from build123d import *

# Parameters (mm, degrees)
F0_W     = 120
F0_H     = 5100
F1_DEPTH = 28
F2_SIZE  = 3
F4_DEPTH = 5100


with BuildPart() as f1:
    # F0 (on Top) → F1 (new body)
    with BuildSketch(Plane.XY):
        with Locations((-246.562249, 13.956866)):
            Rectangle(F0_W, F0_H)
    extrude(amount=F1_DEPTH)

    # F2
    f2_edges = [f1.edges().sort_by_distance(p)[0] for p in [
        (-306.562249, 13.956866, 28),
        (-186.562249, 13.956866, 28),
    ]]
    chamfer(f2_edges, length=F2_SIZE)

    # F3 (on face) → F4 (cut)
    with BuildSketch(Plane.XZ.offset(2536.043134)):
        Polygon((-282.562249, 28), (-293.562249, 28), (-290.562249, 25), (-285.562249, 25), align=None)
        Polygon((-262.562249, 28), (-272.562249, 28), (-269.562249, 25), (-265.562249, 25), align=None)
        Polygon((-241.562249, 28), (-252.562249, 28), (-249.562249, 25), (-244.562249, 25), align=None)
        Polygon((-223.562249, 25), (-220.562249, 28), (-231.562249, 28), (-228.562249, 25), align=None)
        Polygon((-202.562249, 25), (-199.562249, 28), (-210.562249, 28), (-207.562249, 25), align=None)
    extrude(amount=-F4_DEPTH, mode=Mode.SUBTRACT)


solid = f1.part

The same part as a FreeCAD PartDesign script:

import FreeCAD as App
import Part
import Sketcher
Q = App.Units.Quantity


def edges_at(feature, points):
    """Names of the edges that pass closest to the given points."""
    edges = feature.Shape.Edges
    near = lambda p: min(range(len(edges)), key=lambda i: edges[i].distToShape(Part.Vertex(*p))[0])
    return sorted({f"Edge{near(p) + 1}" for p in points})

doc = App.newDocument("Part")
body = doc.addObject("PartDesign::Body", "Body")

# Sketch on XY plane
sketch1 = body.newObject("Sketcher::SketchObject", "Sketch")
sketch1.AttachmentSupport = (doc.getObject("XY_Plane"), [""])
sketch1.MapMode = "FlatFace"
sketch1.addGeometry([
    Part.LineSegment(App.Vector(-307, 2564, 0), App.Vector(-307, -2536, 0)),
    Part.LineSegment(App.Vector(-307, -2536, 0), App.Vector(-187, -2536, 0)),
    Part.LineSegment(App.Vector(-187, -2536, 0), App.Vector(-187, 2564, 0)),
    Part.LineSegment(App.Vector(-187, 2564, 0), App.Vector(-307, 2564, 0)),
], False)
sketch1.addConstraint([
    Sketcher.Constraint("Coincident", 0, 2, 1, 1),
    Sketcher.Constraint("Coincident", 1, 2, 2, 1),
    Sketcher.Constraint("Coincident", 2, 2, 3, 1),
    Sketcher.Constraint("Coincident", 3, 2, 0, 1),
    Sketcher.Constraint("Vertical", 0),
    Sketcher.Constraint("Horizontal", 1),
    Sketcher.Constraint("Vertical", 2),
    Sketcher.Constraint("Horizontal", 3),
    Sketcher.Constraint("DistanceX", 1, 1, 1, 2, Q("120 mm")),
    Sketcher.Constraint("DistanceY", 0, 2, 0, 1, Q("5100 mm")),
    Sketcher.Constraint("DistanceX", 0, 2, -1, 1, Q("306.562249 mm")),
    Sketcher.Constraint("DistanceY", 0, 2, -1, 1, Q("2536.043134 mm")),
])
pad1 = body.newObject("PartDesign::Pad", "Pad")
pad1.Profile = sketch1
pad1.Length = 28
doc.recompute()

chamfer = body.newObject("PartDesign::Chamfer", "Chamfer")
chamfer.Base = (pad1, edges_at(pad1, [(-306.562, 13.957, 28), (-186.562, 13.957, 28)]))
chamfer.Size = 3

# Sketch on XZ plane
sketch2 = body.newObject("Sketcher::SketchObject", "Sketch001")
sketch2.AttachmentSupport = (doc.getObject("XZ_Plane"), [""])
sketch2.MapMode = "FlatFace"
sketch2.AttachmentOffset = App.Placement(App.Vector(0, 0, 2536.043134), App.Rotation())
sketch2.addGeometry([
    Part.LineSegment(App.Vector(-282.6, 28, 0), App.Vector(-293.6, 28, 0)),  # 0
    Part.LineSegment(App.Vector(-293.6, 28, 0), App.Vector(-290.6, 25, 0)),  # 1
    Part.LineSegment(App.Vector(-290.6, 25, 0), App.Vector(-285.6, 25, 0)),  # 2
    Part.LineSegment(App.Vector(-285.6, 25, 0), App.Vector(-282.6, 28, 0)),  # 3
    Part.LineSegment(App.Vector(-262.6, 28, 0), App.Vector(-272.6, 28, 0)),  # 4
    Part.LineSegment(App.Vector(-272.6, 28, 0), App.Vector(-269.6, 25, 0)),  # 5
    Part.LineSegment(App.Vector(-269.6, 25, 0), App.Vector(-265.6, 25, 0)),  # 6
    Part.LineSegment(App.Vector(-265.6, 25, 0), App.Vector(-262.6, 28, 0)),  # 7
    Part.LineSegment(App.Vector(-241.6, 28, 0), App.Vector(-252.6, 28, 0)),  # 8
    Part.LineSegment(App.Vector(-252.6, 28, 0), App.Vector(-249.6, 25, 0)),  # 9
    Part.LineSegment(App.Vector(-249.6, 25, 0), App.Vector(-244.6, 25, 0)),  # 10
    Part.LineSegment(App.Vector(-244.6, 25, 0), App.Vector(-241.6, 28, 0)),  # 11
    Part.LineSegment(App.Vector(-223.6, 25, 0), App.Vector(-220.6, 28, 0)),  # 12
    Part.LineSegment(App.Vector(-220.6, 28, 0), App.Vector(-231.6, 28, 0)),  # 13
    Part.LineSegment(App.Vector(-231.6, 28, 0), App.Vector(-228.6, 25, 0)),  # 14
    Part.LineSegment(App.Vector(-228.6, 25, 0), App.Vector(-223.6, 25, 0)),  # 15
    Part.LineSegment(App.Vector(-202.6, 25, 0), App.Vector(-199.6, 28, 0)),  # 16
    Part.LineSegment(App.Vector(-199.6, 28, 0), App.Vector(-210.6, 28, 0)),  # 17
    Part.LineSegment(App.Vector(-210.6, 28, 0), App.Vector(-207.6, 25, 0)),  # 18
    Part.LineSegment(App.Vector(-207.6, 25, 0), App.Vector(-202.6, 25, 0)),  # 19
], False)
sketch2.addConstraint([
    Sketcher.Constraint("Coincident", 0, 2, 1, 1),
    Sketcher.Constraint("Coincident", 1, 2, 2, 1),
    Sketcher.Constraint("Coincident", 2, 2, 3, 1),
    Sketcher.Constraint("Coincident", 3, 2, 0, 1),
    Sketcher.Constraint("Coincident", 4, 2, 5, 1),
    Sketcher.Constraint("Coincident", 5, 2, 6, 1),
    Sketcher.Constraint("Coincident", 6, 2, 7, 1),
    Sketcher.Constraint("Coincident", 7, 2, 4, 1),
    Sketcher.Constraint("Coincident", 8, 2, 9, 1),
    Sketcher.Constraint("Coincident", 9, 2, 10, 1),
    Sketcher.Constraint("Coincident", 10, 2, 11, 1),
    Sketcher.Constraint("Coincident", 11, 2, 8, 1),
    Sketcher.Constraint("Coincident", 12, 2, 13, 1),
    Sketcher.Constraint("Coincident", 13, 2, 14, 1),
    Sketcher.Constraint("Coincident", 14, 2, 15, 1),
    Sketcher.Constraint("Coincident", 15, 2, 12, 1),
    Sketcher.Constraint("Coincident", 16, 2, 17, 1),
    Sketcher.Constraint("Coincident", 17, 2, 18, 1),
    Sketcher.Constraint("Coincident", 18, 2, 19, 1),
    Sketcher.Constraint("Coincident", 19, 2, 16, 1),
    Sketcher.Constraint("Horizontal", 0),
    Sketcher.Constraint("Horizontal", 2),
    Sketcher.Constraint("Horizontal", 4),
    Sketcher.Constraint("Horizontal", 6),
    Sketcher.Constraint("Horizontal", 8),
    Sketcher.Constraint("Horizontal", 10),
    Sketcher.Constraint("Horizontal", 13),
    Sketcher.Constraint("Horizontal", 15),
    Sketcher.Constraint("Horizontal", 17),
    Sketcher.Constraint("Horizontal", 19),
    Sketcher.Constraint("Perpendicular", 1, 3),
    Sketcher.Constraint("Perpendicular", 3, 5),
    Sketcher.Constraint("Perpendicular", 5, 7),
    Sketcher.Constraint("Perpendicular", 7, 9),
    Sketcher.Constraint("Perpendicular", 9, 11),
    Sketcher.Constraint("Parallel", 11, 12),
    Sketcher.Constraint("Perpendicular", 12, 14),
    Sketcher.Constraint("Perpendicular", 14, 16),
    Sketcher.Constraint("Perpendicular", 16, 18),
    Sketcher.Constraint("Horizontal", 3, 2, 4, 2),
    Sketcher.Constraint("Horizontal", 2, 2, 5, 2),
    Sketcher.Constraint("Horizontal", 7, 2, 8, 2),
    Sketcher.Constraint("Horizontal", 6, 2, 9, 2),
    Sketcher.Constraint("Horizontal", 11, 2, 12, 2),
    Sketcher.Constraint("Horizontal", 10, 2, 14, 2),
    Sketcher.Constraint("Horizontal", 13, 2, 16, 2),
    Sketcher.Constraint("Horizontal", 15, 2, 18, 2),
    Sketcher.Constraint("Equal", 0, 8),
    Sketcher.Constraint("Equal", 8, 13),
    Sketcher.Constraint("Equal", 13, 17),
    Sketcher.Constraint("Equal", 1, 3),
    Sketcher.Constraint("DistanceX", 0, 2, 0, 1, Q("11 mm")),
    Sketcher.Constraint("DistanceX", 2, 1, 2, 2, Q("5 mm")),
    Sketcher.Constraint("DistanceX", 4, 2, 4, 1, Q("10 mm")),
    Sketcher.Constraint("DistanceY", -1, 1, 0, 2, Q("28 mm")),
    Sketcher.Constraint("DistanceX", 3, 2, 4, 2, Q("10 mm")),
    Sketcher.Constraint("DistanceX", 7, 2, 8, 2, Q("10 mm")),
    Sketcher.Constraint("DistanceX", 11, 2, 12, 2, Q("21 mm")),
    Sketcher.Constraint("DistanceX", 12, 2, 16, 2, Q("21 mm")),
    Sketcher.Constraint("DistanceX", 0, 2, -1, 1, Q("293.562249 mm")),
])
pocket1 = body.newObject("PartDesign::Pocket", "Pocket")
pocket1.Profile = sketch2
pocket1.Length = 5100

doc.recompute()
